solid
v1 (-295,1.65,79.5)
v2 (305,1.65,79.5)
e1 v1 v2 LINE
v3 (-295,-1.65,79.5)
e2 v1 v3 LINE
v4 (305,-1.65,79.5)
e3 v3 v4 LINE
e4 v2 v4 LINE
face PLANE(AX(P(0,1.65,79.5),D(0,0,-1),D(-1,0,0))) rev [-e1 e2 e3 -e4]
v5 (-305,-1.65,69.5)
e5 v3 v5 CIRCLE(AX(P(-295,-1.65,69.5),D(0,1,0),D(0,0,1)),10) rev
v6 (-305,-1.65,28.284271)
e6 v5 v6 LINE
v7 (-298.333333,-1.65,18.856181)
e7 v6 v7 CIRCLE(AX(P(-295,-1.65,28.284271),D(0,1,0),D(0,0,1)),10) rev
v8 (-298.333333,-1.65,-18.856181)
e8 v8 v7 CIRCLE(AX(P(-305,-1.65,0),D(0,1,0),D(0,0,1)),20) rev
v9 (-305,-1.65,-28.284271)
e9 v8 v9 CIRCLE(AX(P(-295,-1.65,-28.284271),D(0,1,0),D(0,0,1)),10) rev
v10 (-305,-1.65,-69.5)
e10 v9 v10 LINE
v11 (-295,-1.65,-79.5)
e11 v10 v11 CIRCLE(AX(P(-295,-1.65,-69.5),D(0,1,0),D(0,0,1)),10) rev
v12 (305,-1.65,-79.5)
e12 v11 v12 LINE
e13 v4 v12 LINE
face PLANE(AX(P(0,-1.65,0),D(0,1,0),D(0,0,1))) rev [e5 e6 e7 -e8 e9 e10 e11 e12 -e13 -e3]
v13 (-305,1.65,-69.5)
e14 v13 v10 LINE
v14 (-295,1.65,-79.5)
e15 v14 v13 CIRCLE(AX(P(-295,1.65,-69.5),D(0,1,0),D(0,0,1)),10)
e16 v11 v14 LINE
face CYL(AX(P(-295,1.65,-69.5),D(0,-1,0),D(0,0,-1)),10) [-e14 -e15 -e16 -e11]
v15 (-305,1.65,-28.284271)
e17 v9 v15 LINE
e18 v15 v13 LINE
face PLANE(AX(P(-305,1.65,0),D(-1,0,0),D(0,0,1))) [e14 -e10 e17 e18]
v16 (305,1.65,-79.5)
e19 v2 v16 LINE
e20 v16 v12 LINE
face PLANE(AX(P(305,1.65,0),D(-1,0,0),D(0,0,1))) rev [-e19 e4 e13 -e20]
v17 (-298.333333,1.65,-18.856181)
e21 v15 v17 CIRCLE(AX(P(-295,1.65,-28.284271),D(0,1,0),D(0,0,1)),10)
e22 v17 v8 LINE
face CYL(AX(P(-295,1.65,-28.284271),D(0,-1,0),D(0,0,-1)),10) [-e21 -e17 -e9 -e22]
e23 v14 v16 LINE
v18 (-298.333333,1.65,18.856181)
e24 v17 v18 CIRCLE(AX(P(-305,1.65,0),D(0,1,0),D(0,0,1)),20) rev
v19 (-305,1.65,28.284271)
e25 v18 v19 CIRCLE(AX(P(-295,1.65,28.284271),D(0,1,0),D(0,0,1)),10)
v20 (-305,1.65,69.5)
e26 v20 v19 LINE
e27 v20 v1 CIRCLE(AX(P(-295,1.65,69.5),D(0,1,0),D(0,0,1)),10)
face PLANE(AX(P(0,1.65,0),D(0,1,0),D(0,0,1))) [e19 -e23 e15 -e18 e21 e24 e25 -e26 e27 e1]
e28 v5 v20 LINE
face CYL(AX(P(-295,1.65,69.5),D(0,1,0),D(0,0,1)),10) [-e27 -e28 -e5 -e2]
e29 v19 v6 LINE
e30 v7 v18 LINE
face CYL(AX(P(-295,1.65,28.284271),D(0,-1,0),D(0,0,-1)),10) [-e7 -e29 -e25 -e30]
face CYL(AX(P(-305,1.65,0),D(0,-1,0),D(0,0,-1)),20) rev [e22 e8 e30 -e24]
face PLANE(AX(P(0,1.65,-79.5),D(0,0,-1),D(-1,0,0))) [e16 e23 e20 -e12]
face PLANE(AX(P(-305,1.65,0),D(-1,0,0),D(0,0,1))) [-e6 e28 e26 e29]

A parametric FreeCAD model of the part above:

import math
import FreeCAD as App
import Part
import Sketcher


def edges_at(feature, points):
    """Names of the edges that pass closest to the given points."""
    edges = feature.Shape.Edges
    near = lambda p: min(range(len(edges)), key=lambda i: edges[i].distToShape(Part.Vertex(*p))[0])
    return sorted({f"Edge{near(p) + 1}" for p in points})

doc = App.newDocument("Part")
body = doc.addObject("PartDesign::Body", "Body")

sketch1 = body.newObject("Sketcher::SketchObject", "Sketch")
sketch1.AttachmentSupport = (doc.getObject("XZ_Plane"), [""])
sketch1.MapMode = "FlatFace"
sketch1.addGeometry(Part.LineSegment(App.Vector(-305, 20, 0), App.Vector(-305, 80, 0)), False)
sketch1.addGeometry(Part.LineSegment(App.Vector(-305, 80, 0), App.Vector(305, 80, 0)), False)
sketch1.addGeometry(Part.LineSegment(App.Vector(305, 80, 0), App.Vector(305, -80, 0)), False)
sketch1.addGeometry(Part.LineSegment(App.Vector(305, -80, 0), App.Vector(-305, -80, 0)), False)
sketch1.addGeometry(Part.LineSegment(App.Vector(-305, -80, 0), App.Vector(-305, -20, 0)), False)
sketch1.addGeometry(Part.ArcOfCircle(Part.Circle(App.Vector(-305, 0, 0), App.Vector(0, 0, 1), 20), math.radians(-90), math.radians(90)), False)
sketch1.addConstraint(Sketcher.Constraint("Coincident", 0, 2, 1, 1))
sketch1.addConstraint(Sketcher.Constraint("Coincident", 1, 2, 2, 1))
sketch1.addConstraint(Sketcher.Constraint("Coincident", 2, 2, 3, 1))
sketch1.addConstraint(Sketcher.Constraint("Coincident", 3, 2, 4, 1))
sketch1.addConstraint(Sketcher.Constraint("Coincident", 4, 2, 5, 1))
sketch1.addConstraint(Sketcher.Constraint("Coincident", 5, 2, 0, 1))
sketch1.addConstraint(Sketcher.Constraint("Vertical", 0))
sketch1.addConstraint(Sketcher.Constraint("Horizontal", 1))
sketch1.addConstraint(Sketcher.Constraint("Vertical", 2))
sketch1.addConstraint(Sketcher.Constraint("Horizontal", 3))
sketch1.addConstraint(Sketcher.Constraint("Vertical", 4))
sketch1.addConstraint(Sketcher.Constraint("Symmetric", 0, 2, 2, 2, -1, 1))
sketch1.addConstraint(Sketcher.Constraint("Symmetric", 4, 2, 5, 2, -1))
sketch1.addConstraint(Sketcher.Constraint("Vertical", 5, 3, 0, 2))
sketch1.addConstraint(Sketcher.Constraint("Radius", 5, 20.0))
sketch1.addConstraint(Sketcher.Constraint("DistanceX", 1, 1, 1, 2, 610.0))
sketch1.addConstraint(Sketcher.Constraint("DistanceY", 2, 2, 2, 1, 159.0))
pad1 = body.newObject("PartDesign::Pad", "Pad")
pad1.Profile = sketch1
pad1.Length = 3.3
pad1.Midplane = True
doc.recompute()

fillet = body.newObject("PartDesign::Fillet", "Fillet")
fillet.Base = (pad1, edges_at(pad1, [
    (-305, 0, -79.5),
    (-305, 0, 79.5),
    (-305, 0, 20),
    (-305, 0, -20),
]))
fillet.Radius = 10

doc.recompute()
